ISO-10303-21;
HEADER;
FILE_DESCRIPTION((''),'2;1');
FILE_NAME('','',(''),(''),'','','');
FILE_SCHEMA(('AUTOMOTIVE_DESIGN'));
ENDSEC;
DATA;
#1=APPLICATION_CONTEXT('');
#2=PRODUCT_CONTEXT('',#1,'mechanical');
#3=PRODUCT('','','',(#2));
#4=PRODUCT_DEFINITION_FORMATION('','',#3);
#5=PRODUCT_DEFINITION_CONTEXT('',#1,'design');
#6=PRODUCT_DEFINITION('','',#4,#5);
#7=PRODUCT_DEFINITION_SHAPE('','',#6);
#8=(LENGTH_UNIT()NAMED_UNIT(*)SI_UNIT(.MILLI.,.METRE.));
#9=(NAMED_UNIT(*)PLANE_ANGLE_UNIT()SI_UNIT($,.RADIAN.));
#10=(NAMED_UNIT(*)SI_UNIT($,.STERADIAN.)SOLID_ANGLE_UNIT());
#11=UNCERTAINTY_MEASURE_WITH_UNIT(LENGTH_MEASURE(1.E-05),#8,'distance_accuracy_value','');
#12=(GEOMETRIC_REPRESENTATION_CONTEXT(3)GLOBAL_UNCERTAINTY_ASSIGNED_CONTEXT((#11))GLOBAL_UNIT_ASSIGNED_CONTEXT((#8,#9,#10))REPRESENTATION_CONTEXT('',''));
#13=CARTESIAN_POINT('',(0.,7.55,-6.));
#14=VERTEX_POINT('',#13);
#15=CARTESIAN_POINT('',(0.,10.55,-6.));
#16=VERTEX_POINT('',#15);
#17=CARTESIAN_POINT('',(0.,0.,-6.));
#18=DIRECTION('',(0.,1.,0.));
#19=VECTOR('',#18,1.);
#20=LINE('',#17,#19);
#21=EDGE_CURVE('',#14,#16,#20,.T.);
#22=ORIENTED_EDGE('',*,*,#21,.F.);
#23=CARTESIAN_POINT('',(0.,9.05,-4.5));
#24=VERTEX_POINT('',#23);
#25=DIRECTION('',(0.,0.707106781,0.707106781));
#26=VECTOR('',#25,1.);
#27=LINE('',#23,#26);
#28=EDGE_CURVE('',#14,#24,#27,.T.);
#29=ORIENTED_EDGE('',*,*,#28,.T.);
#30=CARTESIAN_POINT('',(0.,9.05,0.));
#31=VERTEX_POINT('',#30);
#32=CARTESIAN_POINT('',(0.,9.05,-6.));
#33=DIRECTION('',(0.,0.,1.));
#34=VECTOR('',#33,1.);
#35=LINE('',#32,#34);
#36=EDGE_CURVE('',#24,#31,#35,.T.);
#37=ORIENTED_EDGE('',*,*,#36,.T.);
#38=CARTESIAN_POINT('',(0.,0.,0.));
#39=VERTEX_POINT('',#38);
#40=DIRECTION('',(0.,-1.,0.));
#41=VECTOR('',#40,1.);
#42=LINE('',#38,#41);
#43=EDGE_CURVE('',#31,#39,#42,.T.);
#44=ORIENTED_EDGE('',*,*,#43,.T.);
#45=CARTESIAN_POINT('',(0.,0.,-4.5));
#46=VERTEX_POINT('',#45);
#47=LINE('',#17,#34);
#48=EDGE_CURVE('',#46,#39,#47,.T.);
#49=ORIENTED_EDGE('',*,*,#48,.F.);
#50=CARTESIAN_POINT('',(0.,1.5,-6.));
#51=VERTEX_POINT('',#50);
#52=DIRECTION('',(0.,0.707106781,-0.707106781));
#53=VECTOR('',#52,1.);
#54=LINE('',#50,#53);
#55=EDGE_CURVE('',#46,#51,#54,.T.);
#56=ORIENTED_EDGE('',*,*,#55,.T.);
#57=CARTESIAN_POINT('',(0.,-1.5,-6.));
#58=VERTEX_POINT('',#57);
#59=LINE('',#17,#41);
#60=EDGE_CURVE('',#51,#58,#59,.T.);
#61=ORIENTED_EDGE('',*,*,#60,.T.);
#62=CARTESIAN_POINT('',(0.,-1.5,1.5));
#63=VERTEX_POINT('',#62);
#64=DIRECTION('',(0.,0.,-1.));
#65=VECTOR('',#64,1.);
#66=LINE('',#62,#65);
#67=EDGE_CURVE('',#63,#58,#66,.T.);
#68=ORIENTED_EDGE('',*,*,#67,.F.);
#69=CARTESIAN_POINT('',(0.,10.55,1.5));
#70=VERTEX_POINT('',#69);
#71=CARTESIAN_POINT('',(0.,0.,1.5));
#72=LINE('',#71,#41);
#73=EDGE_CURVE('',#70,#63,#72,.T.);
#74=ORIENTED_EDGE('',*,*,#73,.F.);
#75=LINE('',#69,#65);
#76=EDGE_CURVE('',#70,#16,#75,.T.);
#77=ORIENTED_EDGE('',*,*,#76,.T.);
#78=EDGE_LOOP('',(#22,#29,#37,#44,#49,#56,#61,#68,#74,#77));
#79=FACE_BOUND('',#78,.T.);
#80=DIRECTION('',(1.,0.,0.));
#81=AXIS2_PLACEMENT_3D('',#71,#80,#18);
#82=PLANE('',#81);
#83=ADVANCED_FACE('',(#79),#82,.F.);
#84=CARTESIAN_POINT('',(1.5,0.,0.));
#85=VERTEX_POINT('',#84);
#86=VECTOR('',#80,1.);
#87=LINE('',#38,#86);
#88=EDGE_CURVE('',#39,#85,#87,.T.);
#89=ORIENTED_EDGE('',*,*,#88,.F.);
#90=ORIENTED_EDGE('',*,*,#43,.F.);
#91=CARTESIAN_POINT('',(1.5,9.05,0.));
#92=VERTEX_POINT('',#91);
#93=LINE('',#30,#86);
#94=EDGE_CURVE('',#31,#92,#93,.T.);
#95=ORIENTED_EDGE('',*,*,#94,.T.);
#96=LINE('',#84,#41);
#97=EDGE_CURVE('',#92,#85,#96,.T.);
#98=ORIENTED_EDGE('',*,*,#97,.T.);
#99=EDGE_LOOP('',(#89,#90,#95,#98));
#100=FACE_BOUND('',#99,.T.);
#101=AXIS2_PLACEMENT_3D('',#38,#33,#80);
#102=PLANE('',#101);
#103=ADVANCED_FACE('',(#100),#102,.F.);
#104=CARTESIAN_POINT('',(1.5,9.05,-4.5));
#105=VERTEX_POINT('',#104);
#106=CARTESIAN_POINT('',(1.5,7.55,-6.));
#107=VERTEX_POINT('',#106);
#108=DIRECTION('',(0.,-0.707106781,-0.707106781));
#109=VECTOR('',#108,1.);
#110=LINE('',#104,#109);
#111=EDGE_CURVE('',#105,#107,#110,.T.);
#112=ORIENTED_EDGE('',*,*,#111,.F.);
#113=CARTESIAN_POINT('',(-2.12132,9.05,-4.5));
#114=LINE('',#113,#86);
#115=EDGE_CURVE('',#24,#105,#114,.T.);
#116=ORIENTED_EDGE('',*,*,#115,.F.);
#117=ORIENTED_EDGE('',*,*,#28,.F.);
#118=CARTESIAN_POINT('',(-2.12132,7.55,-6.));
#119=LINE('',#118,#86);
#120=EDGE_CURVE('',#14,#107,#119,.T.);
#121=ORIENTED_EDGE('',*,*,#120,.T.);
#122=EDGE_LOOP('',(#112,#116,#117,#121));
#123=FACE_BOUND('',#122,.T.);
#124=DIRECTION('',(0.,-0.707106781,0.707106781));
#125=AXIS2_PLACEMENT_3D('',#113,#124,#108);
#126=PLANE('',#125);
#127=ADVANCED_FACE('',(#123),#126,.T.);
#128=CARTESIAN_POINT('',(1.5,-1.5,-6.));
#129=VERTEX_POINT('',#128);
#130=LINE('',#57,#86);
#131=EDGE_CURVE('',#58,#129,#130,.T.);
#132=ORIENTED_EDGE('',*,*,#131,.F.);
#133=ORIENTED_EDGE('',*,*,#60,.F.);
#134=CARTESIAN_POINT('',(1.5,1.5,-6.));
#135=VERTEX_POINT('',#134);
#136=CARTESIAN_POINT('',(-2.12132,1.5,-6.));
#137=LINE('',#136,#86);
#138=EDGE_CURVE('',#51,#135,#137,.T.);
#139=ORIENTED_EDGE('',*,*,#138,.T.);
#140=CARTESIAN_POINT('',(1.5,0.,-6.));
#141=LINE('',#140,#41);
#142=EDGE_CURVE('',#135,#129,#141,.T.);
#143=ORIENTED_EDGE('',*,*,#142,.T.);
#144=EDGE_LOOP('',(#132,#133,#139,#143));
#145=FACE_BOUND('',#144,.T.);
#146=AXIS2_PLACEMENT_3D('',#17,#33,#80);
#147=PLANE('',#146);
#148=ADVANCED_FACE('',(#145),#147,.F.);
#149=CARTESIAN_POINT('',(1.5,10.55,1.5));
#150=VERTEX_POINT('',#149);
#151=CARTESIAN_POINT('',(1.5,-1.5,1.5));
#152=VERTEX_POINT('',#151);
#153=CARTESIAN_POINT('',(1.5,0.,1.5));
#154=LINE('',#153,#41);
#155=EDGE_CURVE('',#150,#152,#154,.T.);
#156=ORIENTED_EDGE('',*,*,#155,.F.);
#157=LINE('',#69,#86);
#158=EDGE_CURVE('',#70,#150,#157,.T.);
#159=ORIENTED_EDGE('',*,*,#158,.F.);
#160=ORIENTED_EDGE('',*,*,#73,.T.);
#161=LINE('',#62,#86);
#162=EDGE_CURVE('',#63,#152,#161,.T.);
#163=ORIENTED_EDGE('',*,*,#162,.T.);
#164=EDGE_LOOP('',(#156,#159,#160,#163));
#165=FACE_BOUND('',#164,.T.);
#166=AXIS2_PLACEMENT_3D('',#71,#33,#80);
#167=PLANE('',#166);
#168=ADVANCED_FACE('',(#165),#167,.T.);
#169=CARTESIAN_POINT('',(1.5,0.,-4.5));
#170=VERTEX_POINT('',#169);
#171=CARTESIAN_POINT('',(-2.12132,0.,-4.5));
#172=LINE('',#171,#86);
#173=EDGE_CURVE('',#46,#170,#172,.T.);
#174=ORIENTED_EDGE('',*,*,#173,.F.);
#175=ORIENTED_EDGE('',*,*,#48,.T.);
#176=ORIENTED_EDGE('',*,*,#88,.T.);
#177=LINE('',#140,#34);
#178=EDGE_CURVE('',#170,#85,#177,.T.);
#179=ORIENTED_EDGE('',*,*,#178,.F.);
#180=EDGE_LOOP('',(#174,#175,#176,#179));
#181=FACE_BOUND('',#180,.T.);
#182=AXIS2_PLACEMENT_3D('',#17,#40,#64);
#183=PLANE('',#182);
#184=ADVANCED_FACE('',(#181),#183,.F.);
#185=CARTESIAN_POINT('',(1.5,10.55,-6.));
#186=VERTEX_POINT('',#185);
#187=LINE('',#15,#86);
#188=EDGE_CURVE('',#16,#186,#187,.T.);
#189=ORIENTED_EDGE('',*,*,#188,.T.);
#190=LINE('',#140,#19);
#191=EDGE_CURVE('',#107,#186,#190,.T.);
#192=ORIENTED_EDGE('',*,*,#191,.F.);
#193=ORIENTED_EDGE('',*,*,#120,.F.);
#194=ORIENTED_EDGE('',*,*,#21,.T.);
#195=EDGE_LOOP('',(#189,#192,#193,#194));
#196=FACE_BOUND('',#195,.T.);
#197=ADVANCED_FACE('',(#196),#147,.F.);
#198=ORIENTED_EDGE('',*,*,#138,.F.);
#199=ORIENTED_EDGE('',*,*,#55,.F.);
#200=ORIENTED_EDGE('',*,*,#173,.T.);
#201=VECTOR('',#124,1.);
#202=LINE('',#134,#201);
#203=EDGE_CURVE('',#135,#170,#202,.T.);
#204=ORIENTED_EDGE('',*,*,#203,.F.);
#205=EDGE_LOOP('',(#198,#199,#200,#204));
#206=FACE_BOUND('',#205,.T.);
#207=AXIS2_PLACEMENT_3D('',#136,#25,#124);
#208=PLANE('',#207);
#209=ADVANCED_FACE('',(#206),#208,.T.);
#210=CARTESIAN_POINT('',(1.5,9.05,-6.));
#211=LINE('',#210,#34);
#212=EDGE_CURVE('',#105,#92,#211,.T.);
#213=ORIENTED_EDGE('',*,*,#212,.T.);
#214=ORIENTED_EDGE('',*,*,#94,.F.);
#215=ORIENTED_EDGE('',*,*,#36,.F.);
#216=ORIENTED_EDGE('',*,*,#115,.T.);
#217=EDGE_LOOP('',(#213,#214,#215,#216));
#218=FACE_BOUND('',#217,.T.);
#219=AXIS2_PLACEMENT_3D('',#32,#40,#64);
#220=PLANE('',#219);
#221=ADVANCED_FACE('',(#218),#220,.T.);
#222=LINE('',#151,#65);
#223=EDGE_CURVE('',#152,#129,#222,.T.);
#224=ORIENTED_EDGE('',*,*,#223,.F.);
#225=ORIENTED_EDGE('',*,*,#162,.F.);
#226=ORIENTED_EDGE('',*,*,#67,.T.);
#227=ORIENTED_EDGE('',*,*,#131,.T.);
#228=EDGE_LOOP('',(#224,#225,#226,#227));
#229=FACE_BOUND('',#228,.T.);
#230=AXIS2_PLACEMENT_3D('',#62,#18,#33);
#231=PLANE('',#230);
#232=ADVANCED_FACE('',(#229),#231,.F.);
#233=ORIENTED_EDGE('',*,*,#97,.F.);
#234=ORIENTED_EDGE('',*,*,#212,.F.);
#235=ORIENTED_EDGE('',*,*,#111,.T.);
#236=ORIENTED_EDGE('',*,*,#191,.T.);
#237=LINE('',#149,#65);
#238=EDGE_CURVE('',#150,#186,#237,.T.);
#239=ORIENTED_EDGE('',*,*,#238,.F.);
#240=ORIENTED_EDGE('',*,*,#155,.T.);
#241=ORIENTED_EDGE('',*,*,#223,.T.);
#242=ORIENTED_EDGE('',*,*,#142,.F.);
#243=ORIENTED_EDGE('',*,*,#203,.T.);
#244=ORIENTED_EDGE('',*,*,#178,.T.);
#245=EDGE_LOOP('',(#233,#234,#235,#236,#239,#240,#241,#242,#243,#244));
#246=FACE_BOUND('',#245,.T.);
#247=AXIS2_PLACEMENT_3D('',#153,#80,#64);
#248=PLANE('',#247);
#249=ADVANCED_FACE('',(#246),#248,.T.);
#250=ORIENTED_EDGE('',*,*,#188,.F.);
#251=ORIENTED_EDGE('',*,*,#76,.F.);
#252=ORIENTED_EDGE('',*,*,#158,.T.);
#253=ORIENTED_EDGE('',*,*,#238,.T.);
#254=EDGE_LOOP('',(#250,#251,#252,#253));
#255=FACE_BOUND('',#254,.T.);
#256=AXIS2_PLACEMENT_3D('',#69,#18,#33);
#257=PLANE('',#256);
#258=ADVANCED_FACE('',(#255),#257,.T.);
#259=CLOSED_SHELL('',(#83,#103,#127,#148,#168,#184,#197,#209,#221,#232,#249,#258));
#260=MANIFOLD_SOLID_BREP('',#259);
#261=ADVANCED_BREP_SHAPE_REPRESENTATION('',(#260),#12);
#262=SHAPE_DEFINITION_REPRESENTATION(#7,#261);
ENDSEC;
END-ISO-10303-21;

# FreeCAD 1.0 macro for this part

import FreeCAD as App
import Part
import Sketcher

V = App.Vector

doc = App.newDocument("Part")
body = doc.addObject("PartDesign::Body", "Body")

sketch1 = body.newObject("Sketcher::SketchObject", "Sketch")
sketch1.AttachmentSupport = (doc.getObject("XY_Plane"), [""])
sketch1.MapMode = "FlatFace"
sketch1.addGeometry([
    Part.LineSegment(V(1.5, 10.6, 0), V(0, 10.6, 0)),
    Part.LineSegment(V(0, 10.6, 0), V(0, -1.5, 0)),
    Part.LineSegment(V(0, -1.5, 0), V(1.5, -1.5, 0)),
    Part.LineSegment(V(1.5, -1.5, 0), V(1.5, 10.6, 0)),
], False)
sketch1.addConstraint([
    Sketcher.Constraint("Coincident", 0, 2, 1, 1),
    Sketcher.Constraint("Coincident", 1, 2, 2, 1),
    Sketcher.Constraint("Coincident", 2, 2, 3, 1),
    Sketcher.Constraint("Coincident", 3, 2, 0, 1),
    Sketcher.Constraint("Horizontal", 0),
    Sketcher.Constraint("Vertical", 1),
    Sketcher.Constraint("Horizontal", 2),
    Sketcher.Constraint("Vertical", 3),
    Sketcher.Constraint("PointOnObject", 0, 2, -2),
    Sketcher.Constraint("DistanceX", 0, 2, 0, 1, 1.5),
    Sketcher.Constraint("DistanceY", 1, 2, 1, 1, 12.05),
    Sketcher.Constraint("DistanceY", 1, 2, -1, 1, 1.5),
])
pad1 = body.newObject("PartDesign::Pad", "Pad")
pad1.Profile = sketch1
pad1.Length = 1.5

sketch2 = body.newObject("Sketcher::SketchObject", "Sketch001")
sketch2.AttachmentSupport = (doc.getObject("XY_Plane"), [""])
sketch2.MapMode = "FlatFace"
sketch2.addGeometry([
    Part.LineSegment(V(0, 10.6, 0), V(0, 9.1, 0)),
    Part.LineSegment(V(0, 9.1, 0), V(1.5, 9.1, 0)),
    Part.LineSegment(V(1.5, 9.1, 0), V(1.5, 10.6, 0)),
    Part.LineSegment(V(1.5, 10.6, 0), V(0, 10.6, 0)),
    Part.LineSegment(V(0, 0, 0), V(0, -1.5, 0)),
    Part.LineSegment(V(0, -1.5, 0), V(1.5, -1.5, 0)),
    Part.LineSegment(V(1.5, -1.5, 0), V(1.5, 0, 0)),
    Part.LineSegment(V(1.5, 0, 0), V(0, 0, 0)),
], False)
sketch2.addConstraint([
    Sketcher.Constraint("Coincident", 0, 2, 1, 1),
    Sketcher.Constraint("Coincident", 1, 2, 2, 1),
    Sketcher.Constraint("Coincident", 2, 2, 3, 1),
    Sketcher.Constraint("Coincident", 3, 2, 0, 1),
    Sketcher.Constraint("Coincident", 4, 2, 5, 1),
    Sketcher.Constraint("Coincident", 5, 2, 6, 1),
    Sketcher.Constraint("Coincident", 6, 2, 7, 1),
    Sketcher.Constraint("Coincident", 7, 2, 4, 1),
    Sketcher.Constraint("Vertical", 0),
    Sketcher.Constraint("Horizontal", 1),
    Sketcher.Constraint("Vertical", 2),
    Sketcher.Constraint("Horizontal", 3),
    Sketcher.Constraint("Vertical", 4),
    Sketcher.Constraint("Horizontal", 5),
    Sketcher.Constraint("Vertical", 6),
    Sketcher.Constraint("Horizontal", 7),
    Sketcher.Constraint("Coincident", 7, 2, -1, 1),
    Sketcher.Constraint("PointOnObject", 0, 2, -2),
    Sketcher.Constraint("Vertical", 2, 2, 5, 2),
    Sketcher.Constraint("Equal", 7, 0),
    Sketcher.Constraint("Equal", 2, 4),
    Sketcher.Constraint("DistanceX", 1, 1, 1, 2, 1.5),
    Sketcher.Constraint("DistanceY", -1, 1, 0, 2, 9.05),
])
pad2 = body.newObject("PartDesign::Pad", "Pad001")
pad2.Profile = sketch2
pad2.Length = 6
pad2.Reversed = True

sketch3 = body.newObject("Sketcher::SketchObject", "Sketch002")
sketch3.AttachmentSupport = (doc.getObject("YZ_Plane"), [""])
sketch3.MapMode = "FlatFace"
sketch3.AttachmentOffset = App.Placement(V(0, 0, 1.5), App.Rotation())
sketch3.addGeometry([
    Part.LineSegment(V(9.1, -4.5, 0), V(7.5, -6, 0)),
    Part.LineSegment(V(7.5, -6, 0), V(9.1, -6, 0)),
    Part.LineSegment(V(9.1, -6, 0), V(9.1, -4.5, 0)),
    Part.LineSegment(V(0, -4.5, 0), V(0, -6, 0)),
    Part.LineSegment(V(0, -6, 0), V(1.5, -6, 0)),
    Part.LineSegment(V(1.5, -6, 0), V(0, -4.5, 0)),
], False)
sketch3.addConstraint([
    Sketcher.Constraint("Coincident", 0, 2, 1, 1),
    Sketcher.Constraint("Coincident", 1, 2, 2, 1),
    Sketcher.Constraint("Coincident", 2, 2, 0, 1),
    Sketcher.Constraint("Coincident", 3, 2, 4, 1),
    Sketcher.Constraint("Coincident", 4, 2, 5, 1),
    Sketcher.Constraint("Coincident", 5, 2, 3, 1),
    Sketcher.Constraint("Horizontal", 1),
    Sketcher.Constraint("Vertical", 2),
    Sketcher.Constraint("Vertical", 3),
    Sketcher.Constraint("Horizontal", 4),
    Sketcher.Constraint("PointOnObject", 3, 2, -2),
    Sketcher.Constraint("Perpendicular", 0, 5),
    Sketcher.Constraint("Horizontal", 1, 2, 3, 2),
    Sketcher.Constraint("Horizontal", 2, 2, 5, 2),
    Sketcher.Constraint("Equal", 1, 4),
    Sketcher.Constraint("DistanceX", 1, 1, 1, 2, 1.5),
    Sketcher.Constraint("DistanceY", 0, 2, -1, 1, 6.0),
    Sketcher.Constraint("DistanceX", -1, 1, 0, 2, 7.55),
])
pad3 = body.newObject("PartDesign::Pad", "Pad002")
pad3.Profile = sketch3
pad3.Length = 1.5
pad3.Reversed = True

doc.recompute()
